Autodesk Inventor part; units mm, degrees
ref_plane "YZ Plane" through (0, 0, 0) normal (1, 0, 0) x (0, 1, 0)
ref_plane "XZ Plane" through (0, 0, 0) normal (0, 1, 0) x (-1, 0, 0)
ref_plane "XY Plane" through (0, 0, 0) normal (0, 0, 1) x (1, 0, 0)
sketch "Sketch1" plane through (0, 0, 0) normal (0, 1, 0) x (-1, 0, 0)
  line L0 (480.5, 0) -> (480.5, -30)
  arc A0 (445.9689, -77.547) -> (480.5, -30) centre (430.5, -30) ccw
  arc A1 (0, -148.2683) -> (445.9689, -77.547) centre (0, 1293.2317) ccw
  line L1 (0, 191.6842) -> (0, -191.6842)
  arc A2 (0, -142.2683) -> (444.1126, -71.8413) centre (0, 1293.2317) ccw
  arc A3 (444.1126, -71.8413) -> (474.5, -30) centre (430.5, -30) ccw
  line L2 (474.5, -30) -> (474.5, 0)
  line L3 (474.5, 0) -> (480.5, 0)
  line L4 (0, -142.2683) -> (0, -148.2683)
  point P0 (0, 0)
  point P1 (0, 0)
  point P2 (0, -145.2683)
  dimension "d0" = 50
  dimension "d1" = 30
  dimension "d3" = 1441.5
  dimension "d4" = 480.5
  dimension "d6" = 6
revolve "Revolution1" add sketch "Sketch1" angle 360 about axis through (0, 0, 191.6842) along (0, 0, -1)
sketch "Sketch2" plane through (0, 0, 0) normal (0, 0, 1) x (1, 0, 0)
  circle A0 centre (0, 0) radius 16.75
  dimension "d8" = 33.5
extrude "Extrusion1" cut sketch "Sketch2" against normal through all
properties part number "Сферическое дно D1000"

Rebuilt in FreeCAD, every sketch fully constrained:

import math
import FreeCAD as App
import Part
import Sketcher
Q = App.Units.Quantity

doc = App.newDocument("Part")
params = doc.addObject("Spreadsheet::Sheet", "Params")
for row, (alias, value) in enumerate([
    ("sketch1_radius", "50 mm"),
    ("sketch1_width", "6 mm"),
    ("sketch1_height", "30 mm"),
    ("sketch1_radius2", "1435.5 mm"),
    ("revolution_angle", "360 deg"),
    ("sketch2_diameter", "33.5 mm"),
], start=1):
    params.set(f"A{row}", alias)
    params.set(f"B{row}", "=" + value)
    params.setAlias(f"B{row}", alias)

body = doc.addObject("PartDesign::Body", "Body")

sketch1 = doc.addObject("Sketcher::SketchObject", "Sketch")
body.addObject(sketch1)
sketch1.AttachmentSupport = (doc.XZ_Plane, [""])
sketch1.MapMode = "FlatFace"
sketch1.addGeometry([
    Part.LineSegment(App.Vector(-480, -30, 0), App.Vector(-480, 0, 0)),
    Part.LineSegment(App.Vector(-480, 0, 0), App.Vector(-474, 0, 0)),
    Part.LineSegment(App.Vector(-474, 0, 0), App.Vector(-474, -30, 0)),
    Part.ArcOfCircle(Part.Circle(App.Vector(-430, -30, 0), App.Vector(0, 0, 1), 44), math.radians(180), math.radians(252)),
    Part.ArcOfCircle(Part.Circle(App.Vector(0, 1293, 0), App.Vector(0, 0, 1), 1436), math.radians(-108.02), math.radians(-90)),
    Part.LineSegment(App.Vector(0, -142, 0), App.Vector(0, -148, 0)),
    Part.ArcOfCircle(Part.Circle(App.Vector(0, 1293, 0), App.Vector(0, 0, 1), 1442), math.radians(-108.02), math.radians(-90)),
    Part.ArcOfCircle(Part.Circle(App.Vector(-430, -30, 0), App.Vector(0, 0, 1), 50), math.radians(180), math.radians(252)),
], False)
sketch1.addConstraint([
    Sketcher.Constraint("Coincident", 0, 2, 1, 1),
    Sketcher.Constraint("Coincident", 1, 2, 2, 1),
    Sketcher.Constraint("Tangent", 2, 2, 3, 1),
    Sketcher.Constraint("Tangent", 3, 2, 4, 1),
    Sketcher.Constraint("Coincident", 4, 2, 5, 1),
    Sketcher.Constraint("Coincident", 5, 2, 6, 2),
    Sketcher.Constraint("Tangent", 6, 1, 7, 2),
    Sketcher.Constraint("Tangent", 7, 1, 0, 1),
    Sketcher.Constraint("Vertical", 0),
    Sketcher.Constraint("Horizontal", 1),
    Sketcher.Constraint("Vertical", 2),
    Sketcher.Constraint("Vertical", 5),
    Sketcher.Constraint("Coincident", 7, 3, 3, 3),
    Sketcher.Constraint("PointOnObject", 4, 3, -2),
    Sketcher.Constraint("PointOnObject", 0, 2, -1),
    Sketcher.Constraint("PointOnObject", 5, 2, -2),
    Sketcher.Constraint("Equal", 1, 5),
    Sketcher.Constraint("Radius", 7, Q("50 mm")),
    Sketcher.Constraint("DistanceX", 1, 1, 1, 2, Q("6 mm")),
    Sketcher.Constraint("DistanceY", 0, 1, 0, 2, Q("30 mm")),
    Sketcher.Constraint("DistanceX", 0, 2, -1, 1, Q("480.5 mm")),
    Sketcher.Constraint("Radius", 4, Q("1435.5 mm")),
    Sketcher.Constraint("Radius", 6, Q("1441.5036 mm")),
])
sketch1.setExpression("Constraints[17]", "Params.sketch1_radius")
sketch1.setExpression("Constraints[18]", "Params.sketch1_width")
sketch1.setExpression("Constraints[19]", "Params.sketch1_height")
sketch1.setExpression("Constraints[21]", "Params.sketch1_radius2")
revolution = doc.addObject("PartDesign::Revolution", "Revolution")
body.addObject(revolution)
revolution.Profile = sketch1
revolution.ReferenceAxis = (sketch1, ["V_Axis"])
revolution.setExpression("Angle", "Params.revolution_angle")

sketch2 = doc.addObject("Sketcher::SketchObject", "Sketch001")
body.addObject(sketch2)
sketch2.AttachmentSupport = (doc.XY_Plane, [""])
sketch2.MapMode = "FlatFace"
sketch2.addGeometry(Part.Circle(App.Vector(0, 0, 0), App.Vector(0, 0, 1), 17), False)
sketch2.addConstraint([
    Sketcher.Constraint("Coincident", 0, 3, -1, 1),
    Sketcher.Constraint("Diameter", 0, Q("33.5 mm")),
])
sketch2.setExpression("Constraints[1]", "Params.sketch2_diameter")
pocket1 = doc.addObject("PartDesign::Pocket", "Pocket")
body.addObject(pocket1)
pocket1.Profile = sketch2
pocket1.Type = "ThroughAll"

doc.recompute()
